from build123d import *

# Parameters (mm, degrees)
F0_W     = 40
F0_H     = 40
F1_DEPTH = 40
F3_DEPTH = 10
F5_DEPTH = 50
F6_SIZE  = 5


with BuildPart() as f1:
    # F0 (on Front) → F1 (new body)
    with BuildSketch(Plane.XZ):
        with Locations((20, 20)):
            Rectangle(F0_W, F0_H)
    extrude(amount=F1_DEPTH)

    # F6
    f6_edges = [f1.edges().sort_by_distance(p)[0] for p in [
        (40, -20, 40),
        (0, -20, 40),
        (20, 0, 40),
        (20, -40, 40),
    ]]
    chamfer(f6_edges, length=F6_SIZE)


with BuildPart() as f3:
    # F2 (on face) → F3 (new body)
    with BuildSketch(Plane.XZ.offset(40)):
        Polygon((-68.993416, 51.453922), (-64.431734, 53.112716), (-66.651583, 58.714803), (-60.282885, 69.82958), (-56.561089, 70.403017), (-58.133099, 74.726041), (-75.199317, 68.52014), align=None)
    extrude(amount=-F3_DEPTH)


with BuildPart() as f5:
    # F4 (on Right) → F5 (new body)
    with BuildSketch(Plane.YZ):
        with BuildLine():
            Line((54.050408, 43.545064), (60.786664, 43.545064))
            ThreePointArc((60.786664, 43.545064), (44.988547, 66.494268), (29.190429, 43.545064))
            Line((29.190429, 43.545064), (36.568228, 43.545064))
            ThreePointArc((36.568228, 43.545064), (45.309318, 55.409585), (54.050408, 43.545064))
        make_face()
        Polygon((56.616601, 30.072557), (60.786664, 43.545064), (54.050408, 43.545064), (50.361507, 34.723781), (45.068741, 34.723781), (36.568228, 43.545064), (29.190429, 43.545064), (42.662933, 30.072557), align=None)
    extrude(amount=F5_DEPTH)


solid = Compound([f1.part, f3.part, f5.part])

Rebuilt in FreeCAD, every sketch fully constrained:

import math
import FreeCAD as App
import Part
import Sketcher
from FreeCAD import Vector
Q = App.Units.Quantity


def edges_at(feature, points):
    """Names of the edges that pass closest to the given points."""
    edges = feature.Shape.Edges
    near = lambda p: min(range(len(edges)), key=lambda i: edges[i].distToShape(Part.Vertex(*p))[0])
    return sorted({f"Edge{near(p) + 1}" for p in points})


def add_polygon(sketch, points):
    """Adds a closed chain of lines whose ends are joined by coincident constraints."""
    first, n = sketch.GeometryCount, len(points)
    for a, b in zip(points, points[1:] + points[:1]):
        sketch.addGeometry(Part.LineSegment(App.Vector(*a, 0), App.Vector(*b, 0)), False)
    for i in range(n):
        sketch.addConstraint(Sketcher.Constraint("Coincident", first + i, 2, first + (i + 1) % n, 1))

doc = App.newDocument("Part")
body = doc.addObject("PartDesign::Body", "Body")

# Sketch on XZ plane
sketch1 = doc.addObject("Sketcher::SketchObject", "Sketch")
body.addObject(sketch1)
sketch1.AttachmentSupport = (doc.XZ_Plane, [""])
sketch1.MapMode = "FlatFace"
add_polygon(sketch1, [(0, 40), (0, 0), (40, 0), (40, 40)])  # lines 0-3
sketch1.addConstraint([
    Sketcher.Constraint("Vertical", 0),
    Sketcher.Constraint("Horizontal", 1),
    Sketcher.Constraint("Vertical", 2),
    Sketcher.Constraint("Horizontal", 3),
    Sketcher.Constraint("Coincident", 0, 2, -1, 1),
    Sketcher.Constraint("Equal", 3, 0),
    Sketcher.Constraint("DistanceX", 1, 1, 1, 2, Q("40 mm")),
])
pad1 = doc.addObject("PartDesign::Pad", "Pad")
body.addObject(pad1)
pad1.Profile = sketch1
pad1.Length = 40
doc.recompute()

chamfer = doc.addObject("PartDesign::Chamfer", "Chamfer")
body.addObject(chamfer)
chamfer.Base = (pad1, edges_at(pad1, [
    (40, -20, 40),
    (0, -20, 40),
    (20, 0, 40),
    (20, -40, 40),
]))
chamfer.Size = 5
body2 = doc.addObject("PartDesign::Body", "Body001")

# Sketch on XZ plane
sketch2 = doc.addObject("Sketcher::SketchObject", "Sketch001")
body2.addObject(sketch2)
sketch2.AttachmentSupport = (doc.getObject("XZ_Plane001"), [""])
sketch2.MapMode = "FlatFace"
sketch2.AttachmentOffset = App.Placement(Vector(0, 0, 40), App.Rotation())
add_polygon(sketch2, [(-69, 51.5), (-64.4, 53.1), (-66.7, 58.7), (-60.3, 69.8), (-56.6, 70.4), (-58.1, 74.7), (-75.2, 68.5)])  # lines 0-6
sketch2.addConstraint([
    Sketcher.Constraint("Perpendicular", 0, 4),
    Sketcher.Constraint("Perpendicular", 4, 5),
    Sketcher.Constraint("Perpendicular", 5, 6),
    Sketcher.Constraint("Equal", 5, 6),
    Sketcher.Constraint("DistanceX", 4, 2, -1, 1, Q("58.133099 mm")),
    Sketcher.Constraint("DistanceX", 1, 2, 2, 2, Q("6.368698 mm")),
    Sketcher.Constraint("DistanceY", 0, 2, 3, 2, Q("17.290301 mm")),
    Sketcher.Constraint("DistanceY", 5, 2, 4, 2, Q("6.205901 mm")),
    Sketcher.Constraint("Distance", 0, Q("4.85392 mm")),
    Sketcher.Constraint("Distance", 1, Q("6.02587 mm")),
    Sketcher.Constraint("DistanceY", -1, 1, 2, 2, Q("69.82958 mm")),
    Sketcher.Constraint("DistanceX", 3, 2, -1, 1, Q("56.561089 mm")),
    Sketcher.Constraint("DistanceY", -1, 1, 4, 2, Q("74.726041 mm")),
    Sketcher.Constraint("DistanceX", 1, 2, 0, 2, Q("2.219849 mm")),
])
pad2 = doc.addObject("PartDesign::Pad", "Pad001")
body2.addObject(pad2)
pad2.Profile = sketch2
pad2.Length = 10
pad2.Reversed = True
body3 = doc.addObject("PartDesign::Body", "Body002")

# Sketch on YZ plane
sketch3 = doc.addObject("Sketcher::SketchObject", "Sketch002")
body3.addObject(sketch3)
sketch3.AttachmentSupport = (doc.getObject("YZ_Plane002"), [""])
sketch3.MapMode = "FlatFace"
sketch3.addGeometry([
    Part.ArcOfCircle(Part.Circle(Vector(45, 50, 0), Vector(0, 0, 1), 17), math.radians(-21), math.radians(201)),  # 0
    Part.LineSegment(Vector(29, 44, 0), Vector(43, 30, 0)),  # 1
    Part.LineSegment(Vector(43, 30, 0), Vector(57, 30, 0)),  # 2
    Part.LineSegment(Vector(57, 30, 0), Vector(61, 44, 0)),  # 3
    Part.ArcOfCircle(Part.Circle(Vector(45, 46, 0), Vector(0, 0, 1), 9), math.radians(-17), math.radians(197)),  # 4
    Part.LineSegment(Vector(54, 44, 0), Vector(50, 35, 0)),  # 5
    Part.LineSegment(Vector(50, 35, 0), Vector(45, 35, 0)),  # 6
    Part.LineSegment(Vector(45, 35, 0), Vector(37, 44, 0)),  # 7
], False)
sketch3.addConstraint([
    Sketcher.Constraint("Coincident", 0, 2, 1, 1),
    Sketcher.Constraint("Coincident", 1, 2, 2, 1),
    Sketcher.Constraint("Coincident", 2, 2, 3, 1),
    Sketcher.Constraint("Coincident", 3, 2, 0, 1),
    Sketcher.Constraint("Coincident", 4, 1, 5, 1),
    Sketcher.Constraint("Coincident", 5, 2, 6, 1),
    Sketcher.Constraint("Coincident", 6, 2, 7, 1),
    Sketcher.Constraint("Coincident", 7, 2, 4, 2),
    Sketcher.Constraint("Horizontal", 2),
    Sketcher.Constraint("Horizontal", 6),
    Sketcher.Constraint("Horizontal", 0, 2, 3, 2),
    Sketcher.Constraint("Horizontal", 3, 2, 4, 1),
    Sketcher.Constraint("Horizontal", 4, 1, 7, 2),
    Sketcher.Constraint("Angle", 1, Q("-45.000006 deg")),
    Sketcher.Constraint("Distance", 1, Q("19.053 mm")),
    Sketcher.Constraint("Radius", 0, Q("16.912275 mm")),
    Sketcher.Constraint("Radius", 4, Q("9.152224 mm")),
    Sketcher.Constraint("DistanceX", -1, 1, 2, 2, Q("56.616601 mm")),
    Sketcher.Constraint("DistanceX", 5, 2, 4, 1, Q("3.688901 mm")),
    Sketcher.Constraint("DistanceX", 0, 2, 7, 2, Q("7.377799 mm")),
    Sketcher.Constraint("Distance", 5, Q("9.561539 mm")),
    Sketcher.Constraint("Distance", 7, Q("12.250459 mm")),
    Sketcher.Constraint("DistanceX", 2, 1, 2, 2, Q("13.953668 mm")),
    Sketcher.Constraint("DistanceX", 6, 2, 6, 1, Q("5.292766 mm")),
    Sketcher.Constraint("DistanceY", -1, 1, 4, 3, Q("46.257361 mm")),
    Sketcher.Constraint("DistanceX", 0, 3, 4, 3, Q("0.320771 mm")),
])
pad3 = doc.addObject("PartDesign::Pad", "Pad002")
body3.addObject(pad3)
pad3.Profile = sketch3
pad3.Length = 50

doc.recompute()
